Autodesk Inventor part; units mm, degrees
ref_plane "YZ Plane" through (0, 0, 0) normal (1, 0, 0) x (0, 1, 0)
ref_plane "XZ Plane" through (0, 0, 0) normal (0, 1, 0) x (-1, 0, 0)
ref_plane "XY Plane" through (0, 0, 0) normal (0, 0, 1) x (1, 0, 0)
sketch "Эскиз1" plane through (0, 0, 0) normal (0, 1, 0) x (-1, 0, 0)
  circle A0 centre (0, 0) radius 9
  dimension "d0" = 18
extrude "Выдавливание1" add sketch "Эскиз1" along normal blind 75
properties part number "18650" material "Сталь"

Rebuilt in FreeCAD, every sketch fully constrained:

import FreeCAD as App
import Part
import Sketcher

doc = App.newDocument("Part")
body = doc.addObject("PartDesign::Body", "Body")

# Sketch on XZ plane
sketch1 = body.newObject("Sketcher::SketchObject", "Sketch")
sketch1.AttachmentSupport = (doc.getObject("XZ_Plane"), [""])
sketch1.MapMode = "FlatFace"
sketch1.addGeometry(Part.Circle(App.Vector(0, 0, 0), App.Vector(0, 0, 1), 9), False)
sketch1.addConstraint(Sketcher.Constraint("Coincident", 0, 3, -1, 1))
sketch1.addConstraint(Sketcher.Constraint("Diameter", 0, 18.0))
pad1 = body.newObject("PartDesign::Pad", "Pad")
pad1.Profile = sketch1
pad1.Length = 75
pad1.Reversed = True

doc.recompute()
